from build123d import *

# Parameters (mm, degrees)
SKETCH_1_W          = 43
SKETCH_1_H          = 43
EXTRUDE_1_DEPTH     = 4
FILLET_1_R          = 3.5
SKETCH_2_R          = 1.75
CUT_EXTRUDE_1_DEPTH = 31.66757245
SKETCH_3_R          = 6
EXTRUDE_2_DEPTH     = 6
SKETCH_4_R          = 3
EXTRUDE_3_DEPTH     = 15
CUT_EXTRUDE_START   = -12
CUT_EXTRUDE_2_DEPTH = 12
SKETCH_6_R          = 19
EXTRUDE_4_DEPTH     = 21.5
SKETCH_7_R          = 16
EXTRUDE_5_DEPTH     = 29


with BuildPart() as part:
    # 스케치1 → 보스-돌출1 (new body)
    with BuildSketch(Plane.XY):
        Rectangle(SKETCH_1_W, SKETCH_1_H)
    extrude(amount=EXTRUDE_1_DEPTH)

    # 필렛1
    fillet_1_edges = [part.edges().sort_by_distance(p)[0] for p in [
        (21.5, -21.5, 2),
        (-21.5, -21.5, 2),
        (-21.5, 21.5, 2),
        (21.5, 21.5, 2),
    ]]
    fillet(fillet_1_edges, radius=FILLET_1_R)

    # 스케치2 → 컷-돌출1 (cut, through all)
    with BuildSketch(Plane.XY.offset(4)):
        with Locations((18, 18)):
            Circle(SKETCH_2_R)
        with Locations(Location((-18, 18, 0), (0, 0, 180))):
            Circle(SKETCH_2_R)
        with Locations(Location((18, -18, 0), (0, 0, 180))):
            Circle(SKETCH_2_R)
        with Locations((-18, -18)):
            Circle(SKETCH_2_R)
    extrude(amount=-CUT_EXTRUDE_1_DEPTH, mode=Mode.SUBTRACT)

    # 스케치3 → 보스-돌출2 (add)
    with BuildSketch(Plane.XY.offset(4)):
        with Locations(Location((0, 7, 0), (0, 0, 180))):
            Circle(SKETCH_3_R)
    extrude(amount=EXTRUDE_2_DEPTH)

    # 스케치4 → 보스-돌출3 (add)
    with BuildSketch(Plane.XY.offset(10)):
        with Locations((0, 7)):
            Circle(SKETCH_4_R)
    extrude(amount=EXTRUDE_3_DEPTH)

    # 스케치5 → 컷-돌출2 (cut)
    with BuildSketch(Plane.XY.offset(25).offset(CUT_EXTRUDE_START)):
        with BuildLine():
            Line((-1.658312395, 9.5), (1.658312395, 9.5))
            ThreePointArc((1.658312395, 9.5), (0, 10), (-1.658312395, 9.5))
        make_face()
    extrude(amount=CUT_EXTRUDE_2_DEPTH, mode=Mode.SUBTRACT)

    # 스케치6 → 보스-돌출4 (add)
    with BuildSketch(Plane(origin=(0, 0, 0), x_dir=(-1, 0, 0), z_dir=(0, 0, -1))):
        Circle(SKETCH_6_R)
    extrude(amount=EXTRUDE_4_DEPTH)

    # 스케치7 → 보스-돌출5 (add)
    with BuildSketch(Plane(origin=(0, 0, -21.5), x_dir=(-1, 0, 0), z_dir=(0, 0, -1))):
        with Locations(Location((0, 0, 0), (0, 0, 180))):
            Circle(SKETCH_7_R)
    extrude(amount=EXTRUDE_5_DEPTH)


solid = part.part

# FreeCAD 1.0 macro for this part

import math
import FreeCAD as App
import Part
import Sketcher
from FreeCAD import Vector
Q = App.Units.Quantity


def edges_at(feature, points):
    """Names of the edges that pass closest to the given points."""
    edges = feature.Shape.Edges
    near = lambda p: min(range(len(edges)), key=lambda i: edges[i].distToShape(Part.Vertex(*p))[0])
    return sorted({f"Edge{near(p) + 1}" for p in points})

doc = App.newDocument("Part")
params = doc.addObject("Spreadsheet::Sheet", "Params")
for row, (alias, value) in enumerate([
    ("sketch1_width", "43 mm"),
    ("pad1_length", "4 mm"),
    ("fillet_radius", "3.5 mm"),
    ("sketch2_diameter", "3.5 mm"),
    ("sketch3_diameter", "12 mm"),
    ("pad2_length", "6 mm"),
    ("sketch4_diameter", "6 mm"),
    ("pad3_length", "15 mm"),
    ("sketch5_radius", "3 mm"),
    ("pocket2_length", "12 mm"),
    ("sketch6_diameter", "38 mm"),
    ("pad4_length", "21.5 mm"),
    ("sketch7_diameter", "32 mm"),
    ("pad5_length", "29 mm"),
], start=1):
    params.set(f"A{row}", alias)
    params.set(f"B{row}", "=" + value)
    params.setAlias(f"B{row}", alias)

body = doc.addObject("PartDesign::Body", "Body")

# Sketch on XY plane
sketch1 = body.newObject("Sketcher::SketchObject", "Sketch")
sketch1.AttachmentSupport = (doc.getObject("XY_Plane"), [""])
sketch1.MapMode = "FlatFace"
sketch1.addGeometry([
    Part.LineSegment(Vector(-22, 22, 0), Vector(-22, -22, 0)),
    Part.LineSegment(Vector(-22, -22, 0), Vector(22, -22, 0)),
    Part.LineSegment(Vector(22, -22, 0), Vector(22, 22, 0)),
    Part.LineSegment(Vector(22, 22, 0), Vector(-22, 22, 0)),
], False)
sketch1.addConstraint([
    Sketcher.Constraint("Coincident", 0, 2, 1, 1),
    Sketcher.Constraint("Coincident", 1, 2, 2, 1),
    Sketcher.Constraint("Coincident", 2, 2, 3, 1),
    Sketcher.Constraint("Coincident", 3, 2, 0, 1),
    Sketcher.Constraint("Vertical", 0),
    Sketcher.Constraint("Horizontal", 1),
    Sketcher.Constraint("Vertical", 2),
    Sketcher.Constraint("Horizontal", 3),
    Sketcher.Constraint("Symmetric", 0, 2, 2, 2, -1, 1),
    Sketcher.Constraint("Equal", 3, 0),
    Sketcher.Constraint("DistanceX", 1, 1, 1, 2, Q("43 mm")),
])
sketch1.setExpression("Constraints[10]", "Params.sketch1_width")
pad1 = body.newObject("PartDesign::Pad", "Pad")
pad1.Profile = sketch1
pad1.setExpression("Length", "Params.pad1_length")
doc.recompute()

fillet = body.newObject("PartDesign::Fillet", "Fillet")
fillet.Base = (pad1, edges_at(pad1, [
    (21.5, -21.5, 2),
    (-21.5, -21.5, 2),
    (-21.5, 21.5, 2),
    (21.5, 21.5, 2),
]))
fillet.setExpression("Radius", "Params.fillet_radius")

# Sketch on XY plane
sketch2 = body.newObject("Sketcher::SketchObject", "Sketch001")
sketch2.AttachmentSupport = (doc.getObject("XY_Plane"), [""])
sketch2.MapMode = "FlatFace"
sketch2.AttachmentOffset = App.Placement(Vector(0, 0, 4), App.Rotation())
sketch2.addGeometry([
    Part.Circle(Vector(18, 18, 0), Vector(0, 0, 1), 1.8),
    Part.Circle(Vector(-18, 18, 0), Vector(0, 0, 1), 1.8),
    Part.Circle(Vector(18, -18, 0), Vector(0, 0, 1), 1.8),
    Part.Circle(Vector(-18, -18, 0), Vector(0, 0, 1), 1.8),
], False)
sketch2.addConstraint([
    Sketcher.Constraint("Equal", 0, 1),
    Sketcher.Constraint("Equal", 1, 2),
    Sketcher.Constraint("Equal", 2, 3),
    Sketcher.Constraint("Symmetric", 1, 3, 2, 3, -1, 1),
    Sketcher.Constraint("Symmetric", 0, 3, 3, 3, -1, 1),
    Sketcher.Constraint("Symmetric", 0, 3, 1, 3, -2),
    Sketcher.Constraint("Diameter", 0, Q("3.5 mm")),
    Sketcher.Constraint("DistanceX", -1, 1, 0, 3, Q("18 mm")),
    Sketcher.Constraint("DistanceY", -1, 1, 0, 3, Q("18 mm")),
])
sketch2.setExpression("Constraints[6]", "Params.sketch2_diameter")
pocket1 = body.newObject("PartDesign::Pocket", "Pocket")
pocket1.Profile = sketch2
pocket1.Type = "ThroughAll"

# Sketch on XY plane
sketch3 = body.newObject("Sketcher::SketchObject", "Sketch002")
sketch3.AttachmentSupport = (doc.getObject("XY_Plane"), [""])
sketch3.MapMode = "FlatFace"
sketch3.AttachmentOffset = App.Placement(Vector(0, 0, 4), App.Rotation())
sketch3.addGeometry(Part.Circle(Vector(0, 7, 0), Vector(0, 0, 1), 6), False)
sketch3.addConstraint([
    Sketcher.Constraint("PointOnObject", 0, 3, -2),
    Sketcher.Constraint("Diameter", 0, Q("12 mm")),
    Sketcher.Constraint("DistanceY", -1, 1, 0, 3, Q("7 mm")),
])
sketch3.setExpression("Constraints[1]", "Params.sketch3_diameter")
pad2 = body.newObject("PartDesign::Pad", "Pad001")
pad2.Profile = sketch3
pad2.setExpression("Length", "Params.pad2_length")

# Sketch on XY plane
sketch4 = body.newObject("Sketcher::SketchObject", "Sketch003")
sketch4.AttachmentSupport = (doc.getObject("XY_Plane"), [""])
sketch4.MapMode = "FlatFace"
sketch4.AttachmentOffset = App.Placement(Vector(0, 0, 10), App.Rotation())
sketch4.addGeometry(Part.Circle(Vector(0, 7, 0), Vector(0, 0, 1), 3), False)
sketch4.addConstraint([
    Sketcher.Constraint("PointOnObject", 0, 3, -2),
    Sketcher.Constraint("Diameter", 0, Q("6 mm")),
    Sketcher.Constraint("DistanceY", -1, 1, 0, 3, Q("7 mm")),
])
sketch4.setExpression("Constraints[1]", "Params.sketch4_diameter")
pad3 = body.newObject("PartDesign::Pad", "Pad002")
pad3.Profile = sketch4
pad3.setExpression("Length", "Params.pad3_length")

# Sketch on XY plane
sketch5 = body.newObject("Sketcher::SketchObject", "Sketch004")
sketch5.AttachmentSupport = (doc.getObject("XY_Plane"), [""])
sketch5.MapMode = "FlatFace"
sketch5.AttachmentOffset = App.Placement(Vector(0, 0, 13), App.Rotation())
sketch5.addGeometry([
    Part.LineSegment(Vector(-1.7, 9.5, 0), Vector(1.7, 9.5, 0)),
    Part.ArcOfCircle(Part.Circle(Vector(0, 7, 0), Vector(0, 0, 1), 3), math.radians(56), math.radians(124)),
], False)
sketch5.addConstraint([
    Sketcher.Constraint("Coincident", 0, 1, 1, 2),
    Sketcher.Constraint("Coincident", 1, 1, 0, 2),
    Sketcher.Constraint("Horizontal", 0),
    Sketcher.Constraint("PointOnObject", 1, 3, -2),
    Sketcher.Constraint("Radius", 1, Q("3 mm")),
    Sketcher.Constraint("DistanceY", -1, 1, 1, 3, Q("7 mm")),
    Sketcher.Constraint("DistanceY", -1, 1, 0, 1, Q("9.5 mm")),
])
sketch5.setExpression("Constraints[4]", "Params.sketch5_radius")
pocket2 = body.newObject("PartDesign::Pocket", "Pocket001")
pocket2.Profile = sketch5
pocket2.setExpression("Length", "Params.pocket2_length")
pocket2.Reversed = True

# Sketch on XY plane
sketch6 = body.newObject("Sketcher::SketchObject", "Sketch005")
sketch6.AttachmentSupport = (doc.getObject("XY_Plane"), [""])
sketch6.MapMode = "FlatFace"
sketch6.addGeometry(Part.Circle(Vector(0, 0, 0), Vector(0, 0, 1), 19), False)
sketch6.addConstraint([
    Sketcher.Constraint("Coincident", 0, 3, -1, 1),
    Sketcher.Constraint("Diameter", 0, Q("38 mm")),
])
sketch6.setExpression("Constraints[1]", "Params.sketch6_diameter")
pad4 = body.newObject("PartDesign::Pad", "Pad003")
pad4.Profile = sketch6
pad4.setExpression("Length", "Params.pad4_length")
pad4.Reversed = True

# Sketch on XY plane
sketch7 = body.newObject("Sketcher::SketchObject", "Sketch006")
sketch7.AttachmentSupport = (doc.getObject("XY_Plane"), [""])
sketch7.MapMode = "FlatFace"
sketch7.AttachmentOffset = App.Placement(Vector(0, 0, -21.5), App.Rotation())
sketch7.addGeometry(Part.Circle(Vector(0, 0, 0), Vector(0, 0, 1), 16), False)
sketch7.addConstraint([
    Sketcher.Constraint("Coincident", 0, 3, -1, 1),
    Sketcher.Constraint("Diameter", 0, Q("32 mm")),
])
sketch7.setExpression("Constraints[1]", "Params.sketch7_diameter")
pad5 = body.newObject("PartDesign::Pad", "Pad004")
pad5.Profile = sketch7
pad5.setExpression("Length", "Params.pad5_length")
pad5.Reversed = True

doc.recompute()
